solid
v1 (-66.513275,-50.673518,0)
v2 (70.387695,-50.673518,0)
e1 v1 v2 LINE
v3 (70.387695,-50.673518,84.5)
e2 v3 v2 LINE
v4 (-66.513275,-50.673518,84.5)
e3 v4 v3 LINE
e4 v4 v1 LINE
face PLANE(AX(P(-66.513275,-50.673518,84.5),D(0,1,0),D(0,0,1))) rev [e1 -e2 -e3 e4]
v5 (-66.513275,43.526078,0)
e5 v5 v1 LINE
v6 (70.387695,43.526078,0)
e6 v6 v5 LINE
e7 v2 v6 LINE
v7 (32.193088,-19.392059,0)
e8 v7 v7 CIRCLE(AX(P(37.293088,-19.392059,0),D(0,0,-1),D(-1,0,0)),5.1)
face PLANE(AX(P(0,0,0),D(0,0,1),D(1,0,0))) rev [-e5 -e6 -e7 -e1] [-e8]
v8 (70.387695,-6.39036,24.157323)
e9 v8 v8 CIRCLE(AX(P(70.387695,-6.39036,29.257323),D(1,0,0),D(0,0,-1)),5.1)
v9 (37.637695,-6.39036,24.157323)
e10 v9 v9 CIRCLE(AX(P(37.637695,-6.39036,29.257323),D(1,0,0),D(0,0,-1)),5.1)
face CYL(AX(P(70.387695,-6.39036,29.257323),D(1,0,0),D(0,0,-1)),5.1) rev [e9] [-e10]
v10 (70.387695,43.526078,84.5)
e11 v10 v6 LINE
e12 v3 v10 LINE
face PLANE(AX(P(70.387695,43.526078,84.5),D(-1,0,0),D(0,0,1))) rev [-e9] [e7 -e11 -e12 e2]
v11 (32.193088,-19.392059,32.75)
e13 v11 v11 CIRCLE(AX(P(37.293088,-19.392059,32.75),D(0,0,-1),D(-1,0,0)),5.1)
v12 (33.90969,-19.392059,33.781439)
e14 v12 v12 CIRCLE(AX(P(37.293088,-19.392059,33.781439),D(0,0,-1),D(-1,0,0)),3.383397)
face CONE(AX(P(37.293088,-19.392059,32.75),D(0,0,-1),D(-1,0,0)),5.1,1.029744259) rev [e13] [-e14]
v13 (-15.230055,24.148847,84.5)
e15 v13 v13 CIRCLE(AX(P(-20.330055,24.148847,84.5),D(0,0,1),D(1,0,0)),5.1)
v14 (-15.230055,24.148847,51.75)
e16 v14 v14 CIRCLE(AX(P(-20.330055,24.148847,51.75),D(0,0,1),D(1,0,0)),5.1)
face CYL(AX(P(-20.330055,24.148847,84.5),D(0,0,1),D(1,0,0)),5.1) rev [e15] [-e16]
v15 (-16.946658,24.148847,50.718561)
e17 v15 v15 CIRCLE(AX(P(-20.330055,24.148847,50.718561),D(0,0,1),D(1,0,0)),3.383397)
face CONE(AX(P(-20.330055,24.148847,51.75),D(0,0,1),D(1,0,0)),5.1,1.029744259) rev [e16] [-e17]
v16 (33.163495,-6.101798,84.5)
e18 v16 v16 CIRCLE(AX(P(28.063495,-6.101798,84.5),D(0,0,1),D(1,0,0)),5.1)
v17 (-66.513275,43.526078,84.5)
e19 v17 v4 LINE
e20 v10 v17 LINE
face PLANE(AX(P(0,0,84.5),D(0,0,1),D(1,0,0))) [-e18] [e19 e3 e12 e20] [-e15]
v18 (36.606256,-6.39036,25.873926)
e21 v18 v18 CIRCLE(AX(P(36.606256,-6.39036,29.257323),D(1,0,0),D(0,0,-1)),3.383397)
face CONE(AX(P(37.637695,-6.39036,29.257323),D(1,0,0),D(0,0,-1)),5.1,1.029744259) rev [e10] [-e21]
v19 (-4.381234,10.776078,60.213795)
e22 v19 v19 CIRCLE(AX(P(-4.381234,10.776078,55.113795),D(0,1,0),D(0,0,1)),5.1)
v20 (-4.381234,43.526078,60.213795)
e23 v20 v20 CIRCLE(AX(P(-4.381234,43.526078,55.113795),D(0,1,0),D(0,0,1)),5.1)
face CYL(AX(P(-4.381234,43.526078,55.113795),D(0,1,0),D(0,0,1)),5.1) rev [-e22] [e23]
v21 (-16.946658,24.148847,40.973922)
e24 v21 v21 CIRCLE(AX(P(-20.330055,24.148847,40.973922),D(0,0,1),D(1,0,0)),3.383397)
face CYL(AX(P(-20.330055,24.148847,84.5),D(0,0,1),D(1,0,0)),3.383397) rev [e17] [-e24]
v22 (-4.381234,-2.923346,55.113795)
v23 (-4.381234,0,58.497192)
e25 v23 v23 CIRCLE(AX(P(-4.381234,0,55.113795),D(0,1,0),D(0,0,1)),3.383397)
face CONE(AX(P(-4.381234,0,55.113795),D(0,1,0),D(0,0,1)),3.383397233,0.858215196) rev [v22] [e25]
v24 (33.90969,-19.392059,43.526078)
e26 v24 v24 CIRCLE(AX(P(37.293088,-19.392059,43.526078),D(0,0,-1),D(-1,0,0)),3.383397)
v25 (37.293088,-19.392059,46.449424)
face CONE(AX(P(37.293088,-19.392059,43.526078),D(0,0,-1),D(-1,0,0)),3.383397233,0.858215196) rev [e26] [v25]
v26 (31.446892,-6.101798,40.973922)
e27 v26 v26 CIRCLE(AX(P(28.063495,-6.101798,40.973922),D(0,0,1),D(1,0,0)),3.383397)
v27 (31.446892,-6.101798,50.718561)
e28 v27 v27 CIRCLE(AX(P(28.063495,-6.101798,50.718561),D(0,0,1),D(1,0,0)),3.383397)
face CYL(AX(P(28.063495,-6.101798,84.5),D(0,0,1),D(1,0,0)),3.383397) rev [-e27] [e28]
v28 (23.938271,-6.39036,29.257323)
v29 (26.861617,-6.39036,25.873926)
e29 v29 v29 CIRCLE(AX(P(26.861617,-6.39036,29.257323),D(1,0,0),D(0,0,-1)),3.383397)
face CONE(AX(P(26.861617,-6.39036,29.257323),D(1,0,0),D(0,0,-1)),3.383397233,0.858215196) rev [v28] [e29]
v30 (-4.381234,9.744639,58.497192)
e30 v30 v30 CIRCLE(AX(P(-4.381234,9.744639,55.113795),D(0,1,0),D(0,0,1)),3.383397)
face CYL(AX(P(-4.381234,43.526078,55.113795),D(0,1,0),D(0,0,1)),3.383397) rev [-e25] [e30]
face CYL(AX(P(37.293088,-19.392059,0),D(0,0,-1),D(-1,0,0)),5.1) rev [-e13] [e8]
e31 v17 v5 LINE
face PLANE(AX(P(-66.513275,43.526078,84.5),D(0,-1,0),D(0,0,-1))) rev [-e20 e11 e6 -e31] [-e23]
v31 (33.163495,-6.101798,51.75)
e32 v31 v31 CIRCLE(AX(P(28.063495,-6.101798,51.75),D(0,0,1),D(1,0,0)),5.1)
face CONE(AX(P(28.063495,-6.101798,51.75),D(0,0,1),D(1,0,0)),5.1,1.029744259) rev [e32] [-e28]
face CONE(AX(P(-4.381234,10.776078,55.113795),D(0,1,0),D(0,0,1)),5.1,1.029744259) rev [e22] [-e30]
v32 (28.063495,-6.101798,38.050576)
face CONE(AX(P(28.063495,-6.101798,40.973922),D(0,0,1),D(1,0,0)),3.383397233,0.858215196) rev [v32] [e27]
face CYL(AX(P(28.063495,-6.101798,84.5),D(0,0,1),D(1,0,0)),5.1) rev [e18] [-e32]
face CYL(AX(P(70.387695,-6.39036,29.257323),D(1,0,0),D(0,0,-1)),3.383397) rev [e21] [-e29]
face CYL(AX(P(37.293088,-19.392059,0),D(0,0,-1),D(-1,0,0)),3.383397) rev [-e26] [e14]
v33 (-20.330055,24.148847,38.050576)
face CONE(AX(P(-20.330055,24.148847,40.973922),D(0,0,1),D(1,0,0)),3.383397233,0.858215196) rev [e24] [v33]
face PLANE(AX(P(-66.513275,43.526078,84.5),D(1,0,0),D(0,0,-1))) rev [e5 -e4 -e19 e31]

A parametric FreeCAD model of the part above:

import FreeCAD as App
import Part
import Sketcher

V = App.Vector
Q = App.Units.Quantity

doc = App.newDocument("Part")
body = doc.addObject("PartDesign::Body", "Body")

# Sketch on XY plane
sketch1 = body.newObject("Sketcher::SketchObject", "Sketch")
sketch1.AttachmentSupport = (doc.getObject("XY_Plane"), [""])
sketch1.MapMode = "FlatFace"
sketch1.addGeometry(Part.LineSegment(V(-67, 44, 0), V(-67, -51, 0)), False)
sketch1.addGeometry(Part.LineSegment(V(-67, -51, 0), V(70, -51, 0)), False)
sketch1.addGeometry(Part.LineSegment(V(70, -51, 0), V(70, 44, 0)), False)
sketch1.addGeometry(Part.LineSegment(V(70, 44, 0), V(-67, 44, 0)), False)
sketch1.addConstraint(Sketcher.Constraint("Coincident", 0, 2, 1, 1))
sketch1.addConstraint(Sketcher.Constraint("Coincident", 1, 2, 2, 1))
sketch1.addConstraint(Sketcher.Constraint("Coincident", 2, 2, 3, 1))
sketch1.addConstraint(Sketcher.Constraint("Coincident", 3, 2, 0, 1))
sketch1.addConstraint(Sketcher.Constraint("Vertical", 0))
sketch1.addConstraint(Sketcher.Constraint("Horizontal", 1))
sketch1.addConstraint(Sketcher.Constraint("Vertical", 2))
sketch1.addConstraint(Sketcher.Constraint("Horizontal", 3))
sketch1.addConstraint(Sketcher.Constraint("DistanceX", 1, 1, 1, 2, Q("136.90097 mm")))
sketch1.addConstraint(Sketcher.Constraint("DistanceY", 0, 2, 0, 1, Q("94.199596 mm")))
sketch1.addConstraint(Sketcher.Constraint("DistanceY", 0, 2, -1, 1, Q("50.673518 mm")))
sketch1.addConstraint(Sketcher.Constraint("DistanceX", 0, 2, -1, 1, Q("66.513275 mm")))
pad1 = body.newObject("PartDesign::Pad", "Pad")
pad1.Profile = sketch1
pad1.Length = 84.5

# Sketch on YZ plane
sketch2 = body.newObject("Sketcher::SketchObject", "Sketch001")
sketch2.AttachmentSupport = (doc.getObject("YZ_Plane"), [""])
sketch2.MapMode = "FlatFace"
sketch2.AttachmentOffset = App.Placement(V(0, 0, -4.381234), App.Rotation())
sketch2.addGeometry(Part.LineSegment(V(-2.9, 55.1, 0), V(43.5, 55.1, 0)), False)
sketch2.addGeometry(Part.LineSegment(V(43.5, 55.1, 0), V(43.5, 60.2, 0)), False)
sketch2.addGeometry(Part.LineSegment(V(43.5, 60.2, 0), V(10.8, 60.2, 0)), False)
sketch2.addGeometry(Part.LineSegment(V(10.8, 60.2, 0), V(9.7, 58.5, 0)), False)
sketch2.addGeometry(Part.LineSegment(V(9.7, 58.5, 0), V(0, 58.5, 0)), False)
sketch2.addGeometry(Part.LineSegment(V(0, 58.5, 0), V(-2.9, 55.1, 0)), False)
sketch2.addGeometry(Part.LineSegment(V(43.5, 55.1, 0), V(-2.9, 55.1, 0)), True)  # axis
sketch2.addConstraint(Sketcher.Constraint("Coincident", 0, 2, 1, 1))
sketch2.addConstraint(Sketcher.Constraint("Coincident", 1, 2, 2, 1))
sketch2.addConstraint(Sketcher.Constraint("Coincident", 2, 2, 3, 1))
sketch2.addConstraint(Sketcher.Constraint("Coincident", 3, 2, 4, 1))
sketch2.addConstraint(Sketcher.Constraint("Coincident", 4, 2, 5, 1))
sketch2.addConstraint(Sketcher.Constraint("Coincident", 5, 2, 0, 1))
sketch2.addConstraint(Sketcher.Constraint("Horizontal", 0))
sketch2.addConstraint(Sketcher.Constraint("Vertical", 1))
sketch2.addConstraint(Sketcher.Constraint("Horizontal", 2))
sketch2.addConstraint(Sketcher.Constraint("Horizontal", 4))
sketch2.addConstraint(Sketcher.Constraint("Horizontal", 6))
sketch2.addConstraint(Sketcher.Constraint("Coincident", 6, 1, 0, 2))
sketch2.addConstraint(Sketcher.Constraint("PointOnObject", 4, 2, -2))
sketch2.addConstraint(Sketcher.Constraint("Equal", 0, 6))
sketch2.addConstraint(Sketcher.Constraint("Angle", 3, Q("-121 deg")))
sketch2.addConstraint(Sketcher.Constraint("DistanceY", 1, 1, 1, 2, Q("5.1 mm")))
sketch2.addConstraint(Sketcher.Constraint("DistanceX", 2, 2, 2, 1, Q("32.75 mm")))
sketch2.addConstraint(Sketcher.Constraint("DistanceX", 4, 2, 4, 1, Q("9.744639 mm")))
sketch2.addConstraint(Sketcher.Constraint("Distance", 5, Q("4.47139 mm")))
sketch2.addConstraint(Sketcher.Constraint("DistanceX", 0, 1, 0, 2, Q("46.449424 mm")))
sketch2.addConstraint(Sketcher.Constraint("DistanceY", -1, 1, 0, 2, Q("55.113795 mm")))
groove = body.newObject("PartDesign::Groove", "Groove")
groove.Profile = sketch2
groove.ReferenceAxis = (sketch2, ["Axis0"])
groove.Angle = 360

# Sketch on YZ plane
sketch3 = body.newObject("Sketcher::SketchObject", "Sketch002")
sketch3.AttachmentSupport = (doc.getObject("YZ_Plane"), [""])
sketch3.MapMode = "FlatFace"
sketch3.AttachmentOffset = App.Placement(V(0, 0, -20.330055), App.Rotation())
sketch3.addGeometry(Part.LineSegment(V(24.1, 38.1, 0), V(24.1, 84.5, 0)), False)
sketch3.addGeometry(Part.LineSegment(V(24.1, 84.5, 0), V(19, 84.5, 0)), False)
sketch3.addGeometry(Part.LineSegment(V(19, 84.5, 0), V(19, 51.8, 0)), False)
sketch3.addGeometry(Part.LineSegment(V(19, 51.8, 0), V(20.8, 50.7, 0)), False)
sketch3.addGeometry(Part.LineSegment(V(20.8, 50.7, 0), V(20.8, 41, 0)), False)
sketch3.addGeometry(Part.LineSegment(V(20.8, 41, 0), V(24.1, 38.1, 0)), False)
sketch3.addGeometry(Part.LineSegment(V(24.1, 84.5, 0), V(24.1, 38.1, 0)), True)  # axis
sketch3.addConstraint(Sketcher.Constraint("Coincident", 0, 2, 1, 1))
sketch3.addConstraint(Sketcher.Constraint("Coincident", 1, 2, 2, 1))
sketch3.addConstraint(Sketcher.Constraint("Coincident", 2, 2, 3, 1))
sketch3.addConstraint(Sketcher.Constraint("Coincident", 3, 2, 4, 1))
sketch3.addConstraint(Sketcher.Constraint("Coincident", 4, 2, 5, 1))
sketch3.addConstraint(Sketcher.Constraint("Coincident", 5, 2, 0, 1))
sketch3.addConstraint(Sketcher.Constraint("Vertical", 0))
sketch3.addConstraint(Sketcher.Constraint("Horizontal", 1))
sketch3.addConstraint(Sketcher.Constraint("Vertical", 2))
sketch3.addConstraint(Sketcher.Constraint("Vertical", 4))
sketch3.addConstraint(Sketcher.Constraint("Vertical", 6))
sketch3.addConstraint(Sketcher.Constraint("Coincident", 6, 1, 0, 2))
sketch3.addConstraint(Sketcher.Constraint("Equal", 0, 6))
sketch3.addConstraint(Sketcher.Constraint("Angle", 3, Q("-31 deg")))
sketch3.addConstraint(Sketcher.Constraint("DistanceX", 1, 2, 1, 1, Q("5.1 mm")))
sketch3.addConstraint(Sketcher.Constraint("DistanceY", 2, 2, 2, 1, Q("32.75 mm")))
sketch3.addConstraint(Sketcher.Constraint("DistanceY", -1, 1, 0, 2, Q("84.5 mm")))
sketch3.addConstraint(Sketcher.Constraint("DistanceY", 4, 2, 4, 1, Q("9.744639 mm")))
sketch3.addConstraint(Sketcher.Constraint("Distance", 5, Q("4.47139 mm")))
sketch3.addConstraint(Sketcher.Constraint("DistanceY", 0, 1, 0, 2, Q("46.449424 mm")))
sketch3.addConstraint(Sketcher.Constraint("DistanceX", -1, 1, 3, 2, Q("20.76545 mm")))
groove2 = body.newObject("PartDesign::Groove", "Groove001")
groove2.Profile = sketch3
groove2.ReferenceAxis = (sketch3, ["Axis0"])
groove2.Angle = 360

# Sketch on YZ plane
sketch4 = body.newObject("Sketcher::SketchObject", "Sketch003")
sketch4.AttachmentSupport = (doc.getObject("YZ_Plane"), [""])
sketch4.MapMode = "FlatFace"
sketch4.AttachmentOffset = App.Placement(V(0, 0, 28.063495), App.Rotation())
sketch4.addGeometry(Part.LineSegment(V(-6.1, 38.1, 0), V(-6.1, 84.5, 0)), False)
sketch4.addGeometry(Part.LineSegment(V(-6.1, 84.5, 0), V(-11.2, 84.5, 0)), False)
sketch4.addGeometry(Part.LineSegment(V(-11.2, 84.5, 0), V(-11.2, 51.8, 0)), False)
sketch4.addGeometry(Part.LineSegment(V(-11.2, 51.8, 0), V(-9.5, 50.7, 0)), False)
sketch4.addGeometry(Part.LineSegment(V(-9.5, 50.7, 0), V(-9.5, 41, 0)), False)
sketch4.addGeometry(Part.LineSegment(V(-9.5, 41, 0), V(-6.1, 38.1, 0)), False)
sketch4.addGeometry(Part.LineSegment(V(-6.1, 84.5, 0), V(-6.1, 38.1, 0)), True)  # axis
sketch4.addConstraint(Sketcher.Constraint("Coincident", 0, 2, 1, 1))
sketch4.addConstraint(Sketcher.Constraint("Coincident", 1, 2, 2, 1))
sketch4.addConstraint(Sketcher.Constraint("Coincident", 2, 2, 3, 1))
sketch4.addConstraint(Sketcher.Constraint("Coincident", 3, 2, 4, 1))
sketch4.addConstraint(Sketcher.Constraint("Coincident", 4, 2, 5, 1))
sketch4.addConstraint(Sketcher.Constraint("Coincident", 5, 2, 0, 1))
sketch4.addConstraint(Sketcher.Constraint("Vertical", 0))
sketch4.addConstraint(Sketcher.Constraint("Horizontal", 1))
sketch4.addConstraint(Sketcher.Constraint("Vertical", 2))
sketch4.addConstraint(Sketcher.Constraint("Vertical", 4))
sketch4.addConstraint(Sketcher.Constraint("Vertical", 6))
sketch4.addConstraint(Sketcher.Constraint("Coincident", 6, 1, 0, 2))
sketch4.addConstraint(Sketcher.Constraint("Equal", 0, 6))
sketch4.addConstraint(Sketcher.Constraint("Angle", 3, Q("-31 deg")))
sketch4.addConstraint(Sketcher.Constraint("DistanceX", 1, 2, 1, 1, Q("5.1 mm")))
sketch4.addConstraint(Sketcher.Constraint("DistanceY", 2, 2, 2, 1, Q("32.75 mm")))
sketch4.addConstraint(Sketcher.Constraint("DistanceY", -1, 1, 0, 2, Q("84.5 mm")))
sketch4.addConstraint(Sketcher.Constraint("DistanceY", 4, 2, 4, 1, Q("9.744639 mm")))
sketch4.addConstraint(Sketcher.Constraint("DistanceX", 0, 2, -1, 1, Q("6.101798 mm")))
sketch4.addConstraint(Sketcher.Constraint("Distance", 5, Q("4.47139 mm")))
sketch4.addConstraint(Sketcher.Constraint("DistanceY", 0, 1, 0, 2, Q("46.449424 mm")))
groove3 = body.newObject("PartDesign::Groove", "Groove002")
groove3.Profile = sketch4
groove3.ReferenceAxis = (sketch4, ["Axis0"])
groove3.Angle = 360

# Sketch on XZ plane
sketch5 = body.newObject("Sketcher::SketchObject", "Sketch004")
sketch5.AttachmentSupport = (doc.getObject("XZ_Plane"), [""])
sketch5.MapMode = "FlatFace"
sketch5.AttachmentOffset = App.Placement(V(0, 0, 6.39036), App.Rotation())
sketch5.addGeometry(Part.LineSegment(V(23.9, 29.3, 0), V(70.4, 29.3, 0)), False)
sketch5.addGeometry(Part.LineSegment(V(70.4, 29.3, 0), V(70.4, 34.4, 0)), False)
sketch5.addGeometry(Part.LineSegment(V(70.4, 34.4, 0), V(37.6, 34.4, 0)), False)
sketch5.addGeometry(Part.LineSegment(V(37.6, 34.4, 0), V(36.6, 32.6, 0)), False)
sketch5.addGeometry(Part.LineSegment(V(36.6, 32.6, 0), V(26.9, 32.6, 0)), False)
sketch5.addGeometry(Part.LineSegment(V(26.9, 32.6, 0), V(23.9, 29.3, 0)), False)
sketch5.addGeometry(Part.LineSegment(V(70.4, 29.3, 0), V(23.9, 29.3, 0)), True)  # axis
sketch5.addConstraint(Sketcher.Constraint("Coincident", 0, 2, 1, 1))
sketch5.addConstraint(Sketcher.Constraint("Coincident", 1, 2, 2, 1))
sketch5.addConstraint(Sketcher.Constraint("Coincident", 2, 2, 3, 1))
sketch5.addConstraint(Sketcher.Constraint("Coincident", 3, 2, 4, 1))
sketch5.addConstraint(Sketcher.Constraint("Coincident", 4, 2, 5, 1))
sketch5.addConstraint(Sketcher.Constraint("Coincident", 5, 2, 0, 1))
sketch5.addConstraint(Sketcher.Constraint("Horizontal", 0))
sketch5.addConstraint(Sketcher.Constraint("Vertical", 1))
sketch5.addConstraint(Sketcher.Constraint("Horizontal", 2))
sketch5.addConstraint(Sketcher.Constraint("Horizontal", 4))
sketch5.addConstraint(Sketcher.Constraint("Horizontal", 6))
sketch5.addConstraint(Sketcher.Constraint("Coincident", 6, 1, 0, 2))
sketch5.addConstraint(Sketcher.Constraint("Equal", 0, 6))
sketch5.addConstraint(Sketcher.Constraint("Angle", 3, Q("-121 deg")))
sketch5.addConstraint(Sketcher.Constraint("DistanceY", 1, 1, 1, 2, Q("5.1 mm")))
sketch5.addConstraint(Sketcher.Constraint("DistanceX", 2, 2, 2, 1, Q("32.75 mm")))
sketch5.addConstraint(Sketcher.Constraint("DistanceX", 4, 2, 4, 1, Q("9.744639 mm")))
sketch5.addConstraint(Sketcher.Constraint("Distance", 5, Q("4.47139 mm")))
sketch5.addConstraint(Sketcher.Constraint("DistanceX", 0, 1, 0, 2, Q("46.449424 mm")))
sketch5.addConstraint(Sketcher.Constraint("DistanceY", -1, 1, 3, 2, Q("32.64072 mm")))
sketch5.addConstraint(Sketcher.Constraint("DistanceX", -1, 1, 5, 2, Q("23.938271 mm")))
groove4 = body.newObject("PartDesign::Groove", "Groove003")
groove4.Profile = sketch5
groove4.ReferenceAxis = (sketch5, ["Axis0"])
groove4.Angle = 360

# Sketch on YZ plane
sketch6 = body.newObject("Sketcher::SketchObject", "Sketch005")
sketch6.AttachmentSupport = (doc.getObject("YZ_Plane"), [""])
sketch6.MapMode = "FlatFace"
sketch6.AttachmentOffset = App.Placement(V(0, 0, 37.293088), App.Rotation())
sketch6.addGeometry(Part.LineSegment(V(-19.4, 46.4, 0), V(-19.4, 0, 0)), False)
sketch6.addGeometry(Part.LineSegment(V(-19.4, 0, 0), V(-14.3, 0, 0)), False)
sketch6.addGeometry(Part.LineSegment(V(-14.3, 0, 0), V(-14.3, 32.8, 0)), False)
sketch6.addGeometry(Part.LineSegment(V(-14.3, 32.8, 0), V(-16, 33.8, 0)), False)
sketch6.addGeometry(Part.LineSegment(V(-16, 33.8, 0), V(-16, 43.5, 0)), False)
sketch6.addGeometry(Part.LineSegment(V(-16, 43.5, 0), V(-19.4, 46.4, 0)), False)
sketch6.addGeometry(Part.LineSegment(V(-19.4, 0, 0), V(-19.4, 46.4, 0)), True)  # axis
sketch6.addConstraint(Sketcher.Constraint("Coincident", 0, 2, 1, 1))
sketch6.addConstraint(Sketcher.Constraint("Coincident", 1, 2, 2, 1))
sketch6.addConstraint(Sketcher.Constraint("Coincident", 2, 2, 3, 1))
sketch6.addConstraint(Sketcher.Constraint("Coincident", 3, 2, 4, 1))
sketch6.addConstraint(Sketcher.Constraint("Coincident", 4, 2, 5, 1))
sketch6.addConstraint(Sketcher.Constraint("Coincident", 5, 2, 0, 1))
sketch6.addConstraint(Sketcher.Constraint("Vertical", 0))
sketch6.addConstraint(Sketcher.Constraint("Horizontal", 1))
sketch6.addConstraint(Sketcher.Constraint("Vertical", 2))
sketch6.addConstraint(Sketcher.Constraint("Vertical", 4))
sketch6.addConstraint(Sketcher.Constraint("Vertical", 6))
sketch6.addConstraint(Sketcher.Constraint("Coincident", 6, 1, 0, 2))
sketch6.addConstraint(Sketcher.Constraint("PointOnObject", 0, 2, -1))
sketch6.addConstraint(Sketcher.Constraint("Equal", 0, 6))
sketch6.addConstraint(Sketcher.Constraint("Angle", 3, Q("149 deg")))
sketch6.addConstraint(Sketcher.Constraint("DistanceX", 1, 1, 1, 2, Q("5.1 mm")))
sketch6.addConstraint(Sketcher.Constraint("DistanceY", 2, 1, 2, 2, Q("32.75 mm")))
sketch6.addConstraint(Sketcher.Constraint("DistanceY", 4, 1, 4, 2, Q("9.744639 mm")))
sketch6.addConstraint(Sketcher.Constraint("Distance", 5, Q("4.47139 mm")))
sketch6.addConstraint(Sketcher.Constraint("DistanceY", 0, 2, 0, 1, Q("46.449424 mm")))
sketch6.addConstraint(Sketcher.Constraint("DistanceX", 0, 2, -1, 1, Q("19.392059 mm")))
groove5 = body.newObject("PartDesign::Groove", "Groove004")
groove5.Profile = sketch6
groove5.ReferenceAxis = (sketch6, ["Axis0"])
groove5.Angle = 360

doc.recompute()
